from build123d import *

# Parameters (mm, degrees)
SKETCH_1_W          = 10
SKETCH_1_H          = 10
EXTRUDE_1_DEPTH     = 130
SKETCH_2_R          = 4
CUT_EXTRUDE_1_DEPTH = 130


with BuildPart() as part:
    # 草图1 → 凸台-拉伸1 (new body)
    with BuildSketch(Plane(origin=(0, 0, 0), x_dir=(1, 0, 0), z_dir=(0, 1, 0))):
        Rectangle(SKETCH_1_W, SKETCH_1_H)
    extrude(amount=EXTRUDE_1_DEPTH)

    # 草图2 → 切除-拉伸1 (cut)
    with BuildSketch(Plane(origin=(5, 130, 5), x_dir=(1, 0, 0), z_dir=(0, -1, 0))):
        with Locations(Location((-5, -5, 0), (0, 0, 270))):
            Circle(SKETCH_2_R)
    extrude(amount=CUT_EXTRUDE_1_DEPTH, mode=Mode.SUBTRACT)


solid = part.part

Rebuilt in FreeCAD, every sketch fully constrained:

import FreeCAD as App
import Part
import Sketcher


def add_polygon(sketch, points):
    """Adds a closed chain of lines whose ends are joined by coincident constraints."""
    first, n = sketch.GeometryCount, len(points)
    for a, b in zip(points, points[1:] + points[:1]):
        sketch.addGeometry(Part.LineSegment(App.Vector(*a, 0), App.Vector(*b, 0)), False)
    for i in range(n):
        sketch.addConstraint(Sketcher.Constraint("Coincident", first + i, 2, first + (i + 1) % n, 1))

doc = App.newDocument("Part")
params = doc.addObject("Spreadsheet::Sheet", "Params")
for row, (alias, value) in enumerate([
    ("sketch1_width", "10 mm"),
    ("pad1_length", "130 mm"),
    ("sketch2_diameter", "8 mm"),
    ("pocket1_length", "130 mm"),
], start=1):
    params.set(f"A{row}", alias)
    params.set(f"B{row}", "=" + value)
    params.setAlias(f"B{row}", alias)

body = doc.addObject("PartDesign::Body", "Body")

# Sketch on XZ plane
sketch1 = body.newObject("Sketcher::SketchObject", "Sketch")
sketch1.AttachmentSupport = (doc.getObject("XZ_Plane"), [""])
sketch1.MapMode = "FlatFace"
add_polygon(sketch1, [(-5, -5), (-5, 5), (5, 5), (5, -5)])  # lines 0-3
sketch1.addConstraint([
    Sketcher.Constraint("Vertical", 0),
    Sketcher.Constraint("Horizontal", 1),
    Sketcher.Constraint("Vertical", 2),
    Sketcher.Constraint("Horizontal", 3),
    Sketcher.Constraint("Symmetric", 0, 2, 2, 2, -1, 1),
    Sketcher.Constraint("Equal", 3, 0),
    Sketcher.Constraint("DistanceX", 1, 1, 1, 2, 10.0),
])
sketch1.setExpression("Constraints[10]", "Params.sketch1_width")
pad1 = body.newObject("PartDesign::Pad", "Pad")
pad1.Profile = sketch1
pad1.setExpression("Length", "Params.pad1_length")
pad1.Reversed = True

# Sketch on XZ plane
sketch2 = body.newObject("Sketcher::SketchObject", "Sketch001")
sketch2.AttachmentSupport = (doc.getObject("XZ_Plane"), [""])
sketch2.MapMode = "FlatFace"
sketch2.AttachmentOffset = App.Placement(App.Vector(0, 0, -130), App.Rotation())
sketch2.addGeometry(Part.Circle(App.Vector(0, 0, 0), App.Vector(0, 0, 1), 4), False)
sketch2.addConstraint([
    Sketcher.Constraint("Coincident", 0, 3, -1, 1),
    Sketcher.Constraint("Diameter", 0, 8.0),
])
sketch2.setExpression("Constraints[1]", "Params.sketch2_diameter")
pocket1 = body.newObject("PartDesign::Pocket", "Pocket")
pocket1.Profile = sketch2
pocket1.setExpression("Length", "Params.pocket1_length")
pocket1.Reversed = True

doc.recompute()
